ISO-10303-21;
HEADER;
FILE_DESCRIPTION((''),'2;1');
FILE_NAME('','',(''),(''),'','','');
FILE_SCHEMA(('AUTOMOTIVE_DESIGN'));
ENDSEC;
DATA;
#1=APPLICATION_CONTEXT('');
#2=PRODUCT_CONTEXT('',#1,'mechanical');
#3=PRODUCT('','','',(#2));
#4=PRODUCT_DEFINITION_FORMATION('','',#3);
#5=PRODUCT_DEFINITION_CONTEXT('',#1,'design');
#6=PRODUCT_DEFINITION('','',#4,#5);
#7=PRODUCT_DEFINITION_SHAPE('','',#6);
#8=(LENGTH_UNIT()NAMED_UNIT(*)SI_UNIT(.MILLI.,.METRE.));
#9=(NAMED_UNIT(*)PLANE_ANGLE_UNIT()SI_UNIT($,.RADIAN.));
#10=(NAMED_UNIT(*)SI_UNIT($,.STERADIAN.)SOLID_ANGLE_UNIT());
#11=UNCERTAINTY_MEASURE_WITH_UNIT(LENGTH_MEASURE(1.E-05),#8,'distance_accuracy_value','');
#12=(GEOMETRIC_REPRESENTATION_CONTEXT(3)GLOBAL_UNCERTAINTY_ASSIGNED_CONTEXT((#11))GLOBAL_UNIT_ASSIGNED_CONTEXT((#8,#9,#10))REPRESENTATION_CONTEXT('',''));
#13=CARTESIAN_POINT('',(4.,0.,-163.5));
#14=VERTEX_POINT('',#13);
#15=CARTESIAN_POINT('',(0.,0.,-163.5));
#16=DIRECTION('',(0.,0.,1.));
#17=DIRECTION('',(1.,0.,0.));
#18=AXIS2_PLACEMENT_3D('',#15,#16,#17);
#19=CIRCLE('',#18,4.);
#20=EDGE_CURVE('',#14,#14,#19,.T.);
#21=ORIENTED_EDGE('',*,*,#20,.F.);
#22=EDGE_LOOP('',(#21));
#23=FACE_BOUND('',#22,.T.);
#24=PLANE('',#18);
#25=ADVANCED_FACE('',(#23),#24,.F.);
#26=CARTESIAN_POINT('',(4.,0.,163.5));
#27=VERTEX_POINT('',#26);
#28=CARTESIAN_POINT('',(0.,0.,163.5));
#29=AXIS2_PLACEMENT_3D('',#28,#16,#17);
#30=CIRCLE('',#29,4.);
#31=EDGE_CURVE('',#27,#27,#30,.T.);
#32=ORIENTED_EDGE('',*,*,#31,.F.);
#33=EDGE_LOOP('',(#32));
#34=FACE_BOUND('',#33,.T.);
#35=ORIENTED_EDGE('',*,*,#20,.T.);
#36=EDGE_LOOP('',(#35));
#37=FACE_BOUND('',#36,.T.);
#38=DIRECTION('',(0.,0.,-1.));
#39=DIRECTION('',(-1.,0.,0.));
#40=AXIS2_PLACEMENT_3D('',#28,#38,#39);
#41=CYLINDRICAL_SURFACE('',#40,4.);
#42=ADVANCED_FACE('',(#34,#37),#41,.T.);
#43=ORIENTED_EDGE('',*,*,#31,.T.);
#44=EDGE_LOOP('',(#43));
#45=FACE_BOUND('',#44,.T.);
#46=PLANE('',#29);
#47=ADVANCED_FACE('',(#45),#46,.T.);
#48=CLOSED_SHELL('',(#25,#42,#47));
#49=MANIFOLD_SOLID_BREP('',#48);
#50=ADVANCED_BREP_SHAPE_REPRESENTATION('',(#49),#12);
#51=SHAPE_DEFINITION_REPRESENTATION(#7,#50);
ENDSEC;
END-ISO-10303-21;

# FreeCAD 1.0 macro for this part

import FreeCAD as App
import Part
import Sketcher

doc = App.newDocument("Part")
params = doc.addObject("Spreadsheet::Sheet", "Params")
for row, (alias, value) in enumerate([
    ("sketch1_diameter", "8 mm"),
    ("pad1_length", "327 mm"),
], start=1):
    params.set(f"A{row}", alias)
    params.set(f"B{row}", "=" + value)
    params.setAlias(f"B{row}", alias)

body = doc.addObject("PartDesign::Body", "Body")

# Sketch on XY plane
sketch1 = body.newObject("Sketcher::SketchObject", "Sketch")
sketch1.AttachmentSupport = (doc.getObject("XY_Plane"), [""])
sketch1.MapMode = "FlatFace"
sketch1.addGeometry(Part.Circle(App.Vector(0, 0, 0), App.Vector(0, 0, 1), 4), False)
sketch1.addConstraint(Sketcher.Constraint("Coincident", 0, 3, -1, 1))
sketch1.addConstraint(Sketcher.Constraint("Diameter", 0, 8.0))
sketch1.setExpression("Constraints[1]", "Params.sketch1_diameter")
pad1 = body.newObject("PartDesign::Pad", "Pad")
pad1.Profile = sketch1
pad1.setExpression("Length", "Params.pad1_length")
pad1.Midplane = True

doc.recompute()
